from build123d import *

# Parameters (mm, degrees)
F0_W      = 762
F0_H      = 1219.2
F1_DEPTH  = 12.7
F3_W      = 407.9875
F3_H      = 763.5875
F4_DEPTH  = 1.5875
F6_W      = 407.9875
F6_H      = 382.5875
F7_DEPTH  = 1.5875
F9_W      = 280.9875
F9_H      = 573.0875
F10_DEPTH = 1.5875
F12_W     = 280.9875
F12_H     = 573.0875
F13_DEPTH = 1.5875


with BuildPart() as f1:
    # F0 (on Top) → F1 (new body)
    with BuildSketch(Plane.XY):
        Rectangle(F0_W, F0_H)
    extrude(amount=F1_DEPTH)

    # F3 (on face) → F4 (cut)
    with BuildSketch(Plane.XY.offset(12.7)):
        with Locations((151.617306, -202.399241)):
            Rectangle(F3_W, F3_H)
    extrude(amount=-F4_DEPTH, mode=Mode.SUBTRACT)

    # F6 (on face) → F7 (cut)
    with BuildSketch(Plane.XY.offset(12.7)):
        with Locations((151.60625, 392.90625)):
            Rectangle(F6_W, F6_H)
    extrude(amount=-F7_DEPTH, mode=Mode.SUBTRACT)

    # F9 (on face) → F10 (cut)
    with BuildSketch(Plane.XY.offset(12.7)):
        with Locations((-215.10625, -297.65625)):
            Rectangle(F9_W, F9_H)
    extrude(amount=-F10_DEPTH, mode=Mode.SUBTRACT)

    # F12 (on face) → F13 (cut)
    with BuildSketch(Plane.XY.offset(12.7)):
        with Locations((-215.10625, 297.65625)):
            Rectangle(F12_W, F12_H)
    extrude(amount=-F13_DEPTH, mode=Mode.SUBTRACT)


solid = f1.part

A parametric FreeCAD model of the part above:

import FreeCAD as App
import Part
import Sketcher

V = App.Vector
Q = App.Units.Quantity


def add_polygon(sketch, points):
    """Adds a closed chain of lines whose ends are joined by coincident constraints."""
    first, n = sketch.GeometryCount, len(points)
    for a, b in zip(points, points[1:] + points[:1]):
        sketch.addGeometry(Part.LineSegment(App.Vector(*a, 0), App.Vector(*b, 0)), False)
    for i in range(n):
        sketch.addConstraint(Sketcher.Constraint("Coincident", first + i, 2, first + (i + 1) % n, 1))

doc = App.newDocument("Part")
params = doc.addObject("Spreadsheet::Sheet", "Params")
for row, (alias, value) in enumerate([
    ("sketch1_width", "30 in"),
    ("sketch1_height", "48 in"),
    ("pad1_length", "0.5 in"),
    ("sketch2_width", "16.0625 in"),
    ("sketch2_height", "30.0625 in"),
    ("pocket1_length", "0.0625 in"),
    ("sketch3_width", "16.0625 in"),
    ("sketch3_height", "15.0625 in"),
    ("pocket2_length", "0.0625 in"),
    ("sketch4_width", "11.0625 in"),
    ("sketch4_height", "22.5625 in"),
    ("pocket3_length", "0.0625 in"),
    ("sketch5_width", "11.0625 in"),
    ("sketch5_height", "22.5625 in"),
    ("pocket4_length", "0.0625 in"),
], start=1):
    params.set(f"A{row}", alias)
    params.set(f"B{row}", "=" + value)
    params.setAlias(f"B{row}", alias)

body = doc.addObject("PartDesign::Body", "Body")

# Sketch on XY plane
sketch1 = body.newObject("Sketcher::SketchObject", "Sketch")
sketch1.AttachmentSupport = (doc.getObject("XY_Plane"), [""])
sketch1.MapMode = "FlatFace"
add_polygon(sketch1, [(-381, 609.6), (-381, -609.6), (381, -609.6), (381, 609.6)])  # lines 0-3
sketch1.addConstraint([
    Sketcher.Constraint("Vertical", 0),
    Sketcher.Constraint("Horizontal", 1),
    Sketcher.Constraint("Vertical", 2),
    Sketcher.Constraint("Horizontal", 3),
    Sketcher.Constraint("Symmetric", 0, 2, 2, 2, -1, 1),
    Sketcher.Constraint("DistanceX", 1, 1, 1, 2, Q("30 in")),
    Sketcher.Constraint("DistanceY", 0, 2, 0, 1, Q("48 in")),
])
sketch1.setExpression("Constraints[9]", "Params.sketch1_width")
sketch1.setExpression("Constraints[10]", "Params.sketch1_height")
pad1 = body.newObject("PartDesign::Pad", "Pad")
pad1.Profile = sketch1
pad1.setExpression("Length", "Params.pad1_length")

# Sketch on XY plane
sketch2 = body.newObject("Sketcher::SketchObject", "Sketch001")
sketch2.AttachmentSupport = (doc.getObject("XY_Plane"), [""])
sketch2.MapMode = "FlatFace"
sketch2.AttachmentOffset = App.Placement(V(0, 0, 0.5 * 25.4), App.Rotation())
add_polygon(sketch2, [(-52.376444, 179.394509), (-52.376444, -584.192991), (355.611056, -584.192991), (355.611056, 179.394509)])  # lines 0-3
sketch2.addConstraint([
    Sketcher.Constraint("Vertical", 0),
    Sketcher.Constraint("Horizontal", 1),
    Sketcher.Constraint("Vertical", 2),
    Sketcher.Constraint("Horizontal", 3),
    Sketcher.Constraint("DistanceX", 1, 1, 1, 2, Q("16.0625 in")),
    Sketcher.Constraint("DistanceY", 0, 2, 0, 1, Q("30.0625 in")),
    Sketcher.Constraint("DistanceY", 0, 2, -1, 1, 584.192991),
    Sketcher.Constraint("DistanceX", 0, 2, -1, 1, 52.376444),
])
sketch2.setExpression("Constraints[8]", "Params.sketch2_width")
sketch2.setExpression("Constraints[9]", "Params.sketch2_height")
pocket1 = body.newObject("PartDesign::Pocket", "Pocket")
pocket1.Profile = sketch2
pocket1.setExpression("Length", "Params.pocket1_length")

# Sketch on XY plane
sketch3 = body.newObject("Sketcher::SketchObject", "Sketch002")
sketch3.AttachmentSupport = (doc.getObject("XY_Plane"), [""])
sketch3.MapMode = "FlatFace"
sketch3.AttachmentOffset = App.Placement(V(0, 0, 0.5 * 25.4), App.Rotation())
add_polygon(sketch3, [(-52.3875, 584.2), (-52.3875, 201.6125), (355.6, 201.6125), (355.6, 584.2)])  # lines 0-3
sketch3.addConstraint([
    Sketcher.Constraint("Vertical", 0),
    Sketcher.Constraint("Horizontal", 1),
    Sketcher.Constraint("Vertical", 2),
    Sketcher.Constraint("Horizontal", 3),
    Sketcher.Constraint("DistanceX", -1, 1, 1, 2, Q("14 in")),
    Sketcher.Constraint("DistanceY", -1, 1, 2, 2, Q("23 in")),
    Sketcher.Constraint("DistanceX", 1, 1, 1, 2, Q("16.0625 in")),
    Sketcher.Constraint("DistanceY", 0, 2, 0, 1, Q("15.0625 in")),
])
sketch3.setExpression("Constraints[10]", "Params.sketch3_width")
sketch3.setExpression("Constraints[11]", "Params.sketch3_height")
pocket2 = body.newObject("PartDesign::Pocket", "Pocket001")
pocket2.Profile = sketch3
pocket2.setExpression("Length", "Params.pocket2_length")

# Sketch on XY plane
sketch4 = body.newObject("Sketcher::SketchObject", "Sketch003")
sketch4.AttachmentSupport = (doc.getObject("XY_Plane"), [""])
sketch4.MapMode = "FlatFace"
sketch4.AttachmentOffset = App.Placement(V(0, 0, 0.5 * 25.4), App.Rotation())
add_polygon(sketch4, [(-355.6, -11.1125), (-355.6, -584.2), (-74.6125, -584.2), (-74.6125, -11.1125)])  # lines 0-3
sketch4.addConstraint([
    Sketcher.Constraint("Vertical", 0),
    Sketcher.Constraint("Horizontal", 1),
    Sketcher.Constraint("Vertical", 2),
    Sketcher.Constraint("Horizontal", 3),
    Sketcher.Constraint("DistanceX", 0, 2, -1, 1, Q("14 in")),
    Sketcher.Constraint("DistanceY", 0, 2, -1, 1, Q("23 in")),
    Sketcher.Constraint("DistanceX", 1, 1, 1, 2, Q("11.0625 in")),
    Sketcher.Constraint("DistanceY", 0, 2, 0, 1, Q("22.5625 in")),
])
sketch4.setExpression("Constraints[10]", "Params.sketch4_width")
sketch4.setExpression("Constraints[11]", "Params.sketch4_height")
pocket3 = body.newObject("PartDesign::Pocket", "Pocket002")
pocket3.Profile = sketch4
pocket3.setExpression("Length", "Params.pocket3_length")

# Sketch on XY plane
sketch5 = body.newObject("Sketcher::SketchObject", "Sketch004")
sketch5.AttachmentSupport = (doc.getObject("XY_Plane"), [""])
sketch5.MapMode = "FlatFace"
sketch5.AttachmentOffset = App.Placement(V(0, 0, 0.5 * 25.4), App.Rotation())
add_polygon(sketch5, [(-355.6, 584.2), (-355.6, 11.1125), (-74.6125, 11.1125), (-74.6125, 584.2)])  # lines 0-3
sketch5.addConstraint([
    Sketcher.Constraint("Vertical", 0),
    Sketcher.Constraint("Horizontal", 1),
    Sketcher.Constraint("Vertical", 2),
    Sketcher.Constraint("Horizontal", 3),
    Sketcher.Constraint("DistanceX", 0, 2, -1, 1, Q("14 in")),
    Sketcher.Constraint("DistanceY", -1, 1, 2, 2, Q("23 in")),
    Sketcher.Constraint("DistanceX", 1, 1, 1, 2, Q("11.0625 in")),
    Sketcher.Constraint("DistanceY", 0, 2, 0, 1, Q("22.5625 in")),
])
sketch5.setExpression("Constraints[10]", "Params.sketch5_width")
sketch5.setExpression("Constraints[11]", "Params.sketch5_height")
pocket4 = body.newObject("PartDesign::Pocket", "Pocket003")
pocket4.Profile = sketch5
pocket4.setExpression("Length", "Params.pocket4_length")

doc.recompute()
